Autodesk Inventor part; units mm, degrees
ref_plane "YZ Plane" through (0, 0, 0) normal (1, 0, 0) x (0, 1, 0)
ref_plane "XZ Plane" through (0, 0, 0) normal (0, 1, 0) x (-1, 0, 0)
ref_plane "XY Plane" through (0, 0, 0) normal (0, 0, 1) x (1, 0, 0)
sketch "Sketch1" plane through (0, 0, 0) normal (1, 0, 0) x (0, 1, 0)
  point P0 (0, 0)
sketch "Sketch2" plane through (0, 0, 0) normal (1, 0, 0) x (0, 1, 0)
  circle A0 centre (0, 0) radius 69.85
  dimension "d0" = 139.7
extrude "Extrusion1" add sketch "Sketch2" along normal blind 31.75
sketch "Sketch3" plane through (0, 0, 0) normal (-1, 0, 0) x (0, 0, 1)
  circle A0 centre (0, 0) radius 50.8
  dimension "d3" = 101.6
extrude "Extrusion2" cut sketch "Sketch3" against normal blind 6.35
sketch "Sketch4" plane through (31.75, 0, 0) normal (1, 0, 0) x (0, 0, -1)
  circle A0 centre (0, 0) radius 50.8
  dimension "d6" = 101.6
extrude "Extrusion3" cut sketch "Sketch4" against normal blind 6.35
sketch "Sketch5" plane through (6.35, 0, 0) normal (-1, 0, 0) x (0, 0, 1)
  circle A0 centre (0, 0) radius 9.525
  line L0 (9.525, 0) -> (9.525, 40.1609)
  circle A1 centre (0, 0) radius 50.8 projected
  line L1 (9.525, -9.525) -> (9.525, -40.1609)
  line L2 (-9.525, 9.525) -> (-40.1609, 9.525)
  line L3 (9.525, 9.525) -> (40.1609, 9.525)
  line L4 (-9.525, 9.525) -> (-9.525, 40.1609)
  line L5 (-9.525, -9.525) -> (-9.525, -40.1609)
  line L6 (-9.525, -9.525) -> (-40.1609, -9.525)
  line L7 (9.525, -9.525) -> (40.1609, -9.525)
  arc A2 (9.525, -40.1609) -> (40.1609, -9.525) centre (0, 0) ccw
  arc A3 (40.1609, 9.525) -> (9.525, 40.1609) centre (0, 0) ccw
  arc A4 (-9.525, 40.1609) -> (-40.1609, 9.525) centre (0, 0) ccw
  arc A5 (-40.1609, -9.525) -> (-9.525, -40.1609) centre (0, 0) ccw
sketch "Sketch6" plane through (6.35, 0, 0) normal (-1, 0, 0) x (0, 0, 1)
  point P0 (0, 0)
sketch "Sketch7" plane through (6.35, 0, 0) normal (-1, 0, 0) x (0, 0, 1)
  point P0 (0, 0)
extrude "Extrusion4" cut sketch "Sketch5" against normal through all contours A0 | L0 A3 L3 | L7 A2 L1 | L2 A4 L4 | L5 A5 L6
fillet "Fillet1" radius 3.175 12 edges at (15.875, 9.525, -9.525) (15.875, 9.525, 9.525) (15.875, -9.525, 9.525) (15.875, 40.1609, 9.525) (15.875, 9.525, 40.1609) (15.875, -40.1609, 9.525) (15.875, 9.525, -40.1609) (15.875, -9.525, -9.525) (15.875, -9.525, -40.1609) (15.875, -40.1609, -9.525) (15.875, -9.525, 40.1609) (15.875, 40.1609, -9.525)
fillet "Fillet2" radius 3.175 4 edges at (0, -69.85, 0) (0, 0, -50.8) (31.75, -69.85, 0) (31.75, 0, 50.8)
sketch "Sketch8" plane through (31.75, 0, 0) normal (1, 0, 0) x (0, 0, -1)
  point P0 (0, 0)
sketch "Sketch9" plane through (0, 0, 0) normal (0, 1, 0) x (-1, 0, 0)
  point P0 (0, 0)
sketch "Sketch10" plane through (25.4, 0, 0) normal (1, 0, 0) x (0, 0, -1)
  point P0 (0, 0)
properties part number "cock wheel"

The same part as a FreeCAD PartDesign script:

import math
import FreeCAD as App
import Part
import Sketcher

V = App.Vector
Q = App.Units.Quantity


def edges_at(feature, points):
    """Names of the edges that pass closest to the given points."""
    edges = feature.Shape.Edges
    near = lambda p: min(range(len(edges)), key=lambda i: edges[i].distToShape(Part.Vertex(*p))[0])
    return sorted({f"Edge{near(p) + 1}" for p in points})

doc = App.newDocument("Part")
params = doc.addObject("Spreadsheet::Sheet", "Params")
for row, (alias, value) in enumerate([
    ("sketch1_diameter", "5.5 in"),
    ("pad1_length", "1.25 in"),
    ("sketch2_diameter", "4 in"),
    ("pocket1_length", "0.25 in"),
    ("sketch3_diameter", "4 in"),
    ("pocket2_length", "0.25 in"),
    ("sketch4_diameter", "0.75 in"),
    ("sketch4_radius", "1.625 in"),
    ("fillet_radius", "0.125 in"),
    ("fillet2_radius", "0.125 in"),
], start=1):
    params.set(f"A{row}", alias)
    params.set(f"B{row}", "=" + value)
    params.setAlias(f"B{row}", alias)

body = doc.addObject("PartDesign::Body", "Body")

# Sketch on YZ plane
sketch1 = doc.addObject("Sketcher::SketchObject", "Sketch")
body.addObject(sketch1)
sketch1.AttachmentSupport = (doc.YZ_Plane, [""])
sketch1.MapMode = "FlatFace"
sketch1.addGeometry(Part.Circle(V(0, 0, 0), V(0, 0, 1), 70), False)
sketch1.addConstraint([
    Sketcher.Constraint("Coincident", 0, 3, -1, 1),
    Sketcher.Constraint("Diameter", 0, Q("5.5 in")),
])
sketch1.setExpression("Constraints[1]", "Params.sketch1_diameter")
pad1 = doc.addObject("PartDesign::Pad", "Pad")
body.addObject(pad1)
pad1.Profile = sketch1
pad1.setExpression("Length", "Params.pad1_length")

# Sketch on YZ plane
sketch2 = doc.addObject("Sketcher::SketchObject", "Sketch001")
body.addObject(sketch2)
sketch2.AttachmentSupport = (doc.YZ_Plane, [""])
sketch2.MapMode = "FlatFace"
sketch2.addGeometry(Part.Circle(V(0, 0, 0), V(0, 0, 1), 51), False)
sketch2.addConstraint([
    Sketcher.Constraint("Coincident", 0, 3, -1, 1),
    Sketcher.Constraint("Diameter", 0, Q("4 in")),
])
sketch2.setExpression("Constraints[1]", "Params.sketch2_diameter")
pocket1 = doc.addObject("PartDesign::Pocket", "Pocket")
body.addObject(pocket1)
pocket1.Profile = sketch2
pocket1.setExpression("Length", "Params.pocket1_length")
pocket1.Reversed = True

# Sketch on YZ plane
sketch3 = doc.addObject("Sketcher::SketchObject", "Sketch002")
body.addObject(sketch3)
sketch3.AttachmentSupport = (doc.YZ_Plane, [""])
sketch3.MapMode = "FlatFace"
sketch3.AttachmentOffset = App.Placement(V(0, 0, 1.25 * 25.4), App.Rotation())
sketch3.addGeometry(Part.Circle(V(0, 0, 0), V(0, 0, 1), 51), False)
sketch3.addConstraint([
    Sketcher.Constraint("Coincident", 0, 3, -1, 1),
    Sketcher.Constraint("Diameter", 0, Q("4 in")),
])
sketch3.setExpression("Constraints[1]", "Params.sketch3_diameter")
pocket2 = doc.addObject("PartDesign::Pocket", "Pocket001")
body.addObject(pocket2)
pocket2.Profile = sketch3
pocket2.setExpression("Length", "Params.pocket2_length")

# Sketch on YZ plane
sketch4 = doc.addObject("Sketcher::SketchObject", "Sketch003")
body.addObject(sketch4)
sketch4.AttachmentSupport = (doc.YZ_Plane, [""])
sketch4.MapMode = "FlatFace"
sketch4.AttachmentOffset = App.Placement(V(0, 0, 0.25 * 25.4), App.Rotation())
sketch4.addGeometry([
    Part.Circle(V(0, 0, 0), V(0, 0, 1), 10),  # 0
    Part.LineSegment(V(40, 10, 0), V(10, 10, 0)),  # 1
    Part.LineSegment(V(10, 10, 0), V(10, 40, 0)),  # 2
    Part.ArcOfCircle(Part.Circle(V(0, 0, 0), V(0, 0, 1), 41), math.radians(13), math.radians(77)),  # 3
    Part.LineSegment(V(-10, 40, 0), V(-10, 10, 0)),  # 4
    Part.LineSegment(V(-10, 10, 0), V(-40, 10, 0)),  # 5
    Part.ArcOfCircle(Part.Circle(V(0, 0, 0), V(0, 0, 1), 41), math.radians(103), math.radians(167)),  # 6
    Part.LineSegment(V(10, -40, 0), V(10, -10, 0)),  # 7
    Part.LineSegment(V(10, -10, 0), V(40, -10, 0)),  # 8
    Part.ArcOfCircle(Part.Circle(V(0, 0, 0), V(0, 0, 1), 41), math.radians(-77), math.radians(-13)),  # 9
    Part.LineSegment(V(-40, -10, 0), V(-10, -10, 0)),  # 10
    Part.LineSegment(V(-10, -10, 0), V(-10, -40, 0)),  # 11
    Part.ArcOfCircle(Part.Circle(V(0, 0, 0), V(0, 0, 1), 41), math.radians(-167), math.radians(-103)),  # 12
], False)
sketch4.addConstraint([
    Sketcher.Constraint("Coincident", 1, 2, 2, 1),
    Sketcher.Constraint("Coincident", 2, 2, 3, 2),
    Sketcher.Constraint("Coincident", 3, 1, 1, 1),
    Sketcher.Constraint("Coincident", 4, 2, 5, 1),
    Sketcher.Constraint("Coincident", 5, 2, 6, 2),
    Sketcher.Constraint("Coincident", 6, 1, 4, 1),
    Sketcher.Constraint("Coincident", 7, 2, 8, 1),
    Sketcher.Constraint("Coincident", 8, 2, 9, 2),
    Sketcher.Constraint("Coincident", 9, 1, 7, 1),
    Sketcher.Constraint("Coincident", 10, 2, 11, 1),
    Sketcher.Constraint("Coincident", 11, 2, 12, 2),
    Sketcher.Constraint("Coincident", 12, 1, 10, 1),
    Sketcher.Constraint("Horizontal", 1),
    Sketcher.Constraint("Vertical", 2),
    Sketcher.Constraint("Vertical", 4),
    Sketcher.Constraint("Horizontal", 5),
    Sketcher.Constraint("Vertical", 7),
    Sketcher.Constraint("Horizontal", 8),
    Sketcher.Constraint("Horizontal", 10),
    Sketcher.Constraint("Vertical", 11),
    Sketcher.Constraint("Coincident", 0, 3, -1, 1),
    Sketcher.Constraint("Coincident", 3, 3, -1, 1),
    Sketcher.Constraint("Coincident", 6, 3, -1, 1),
    Sketcher.Constraint("Coincident", 9, 3, -1, 1),
    Sketcher.Constraint("Coincident", 12, 3, -1, 1),
    Sketcher.Constraint("Equal", 3, 6),
    Sketcher.Constraint("Equal", 6, 9),
    Sketcher.Constraint("Equal", 9, 12),
    Sketcher.Constraint("Symmetric", 4, 2, 7, 2, -1, 1),
    Sketcher.Constraint("Symmetric", 1, 2, 10, 2, -1, 1),
    Sketcher.Constraint("Symmetric", 1, 2, 4, 2, -2),
    Sketcher.Constraint("Equal", 10, 2),
    Sketcher.Constraint("Diameter", 0, Q("0.75 in")),
    Sketcher.Constraint("Radius", 3, Q("1.625 in")),
    Sketcher.Constraint("DistanceX", 6, 1, 2, 2, Q("0.75 in")),
])
sketch4.setExpression("Constraints[32]", "Params.sketch4_diameter")
sketch4.setExpression("Constraints[33]", "Params.sketch4_radius")
pocket3 = doc.addObject("PartDesign::Pocket", "Pocket002")
body.addObject(pocket3)
pocket3.Profile = sketch4
pocket3.Type = "ThroughAll"
pocket3.Reversed = True
doc.recompute()

fillet = doc.addObject("PartDesign::Fillet", "Fillet")
body.addObject(fillet)
fillet.Base = (pocket3, edges_at(pocket3, [
    (15.875, 9.525, -9.525),
    (15.875, 9.525, 9.525),
    (15.875, -9.525, 9.525),
    (15.875, 40.161, 9.525),
    (15.875, 9.525, 40.161),
    (15.875, -40.161, 9.525),
    (15.875, 9.525, -40.161),
    (15.875, -9.525, -9.525),
    (15.875, -9.525, -40.161),
    (15.875, -40.161, -9.525),
    (15.875, -9.525, 40.161),
    (15.875, 40.161, -9.525),
]))
fillet.setExpression("Radius", "Params.fillet_radius")
doc.recompute()

fillet2 = doc.addObject("PartDesign::Fillet", "Fillet001")
body.addObject(fillet2)
fillet2.Base = (fillet, edges_at(fillet, [
    (0, -69.85, 0),
    (0, 0, -50.8),
    (31.75, -69.85, 0),
    (31.75, 0, 50.8),
]))
fillet2.setExpression("Radius", "Params.fillet2_radius")

doc.recompute()
